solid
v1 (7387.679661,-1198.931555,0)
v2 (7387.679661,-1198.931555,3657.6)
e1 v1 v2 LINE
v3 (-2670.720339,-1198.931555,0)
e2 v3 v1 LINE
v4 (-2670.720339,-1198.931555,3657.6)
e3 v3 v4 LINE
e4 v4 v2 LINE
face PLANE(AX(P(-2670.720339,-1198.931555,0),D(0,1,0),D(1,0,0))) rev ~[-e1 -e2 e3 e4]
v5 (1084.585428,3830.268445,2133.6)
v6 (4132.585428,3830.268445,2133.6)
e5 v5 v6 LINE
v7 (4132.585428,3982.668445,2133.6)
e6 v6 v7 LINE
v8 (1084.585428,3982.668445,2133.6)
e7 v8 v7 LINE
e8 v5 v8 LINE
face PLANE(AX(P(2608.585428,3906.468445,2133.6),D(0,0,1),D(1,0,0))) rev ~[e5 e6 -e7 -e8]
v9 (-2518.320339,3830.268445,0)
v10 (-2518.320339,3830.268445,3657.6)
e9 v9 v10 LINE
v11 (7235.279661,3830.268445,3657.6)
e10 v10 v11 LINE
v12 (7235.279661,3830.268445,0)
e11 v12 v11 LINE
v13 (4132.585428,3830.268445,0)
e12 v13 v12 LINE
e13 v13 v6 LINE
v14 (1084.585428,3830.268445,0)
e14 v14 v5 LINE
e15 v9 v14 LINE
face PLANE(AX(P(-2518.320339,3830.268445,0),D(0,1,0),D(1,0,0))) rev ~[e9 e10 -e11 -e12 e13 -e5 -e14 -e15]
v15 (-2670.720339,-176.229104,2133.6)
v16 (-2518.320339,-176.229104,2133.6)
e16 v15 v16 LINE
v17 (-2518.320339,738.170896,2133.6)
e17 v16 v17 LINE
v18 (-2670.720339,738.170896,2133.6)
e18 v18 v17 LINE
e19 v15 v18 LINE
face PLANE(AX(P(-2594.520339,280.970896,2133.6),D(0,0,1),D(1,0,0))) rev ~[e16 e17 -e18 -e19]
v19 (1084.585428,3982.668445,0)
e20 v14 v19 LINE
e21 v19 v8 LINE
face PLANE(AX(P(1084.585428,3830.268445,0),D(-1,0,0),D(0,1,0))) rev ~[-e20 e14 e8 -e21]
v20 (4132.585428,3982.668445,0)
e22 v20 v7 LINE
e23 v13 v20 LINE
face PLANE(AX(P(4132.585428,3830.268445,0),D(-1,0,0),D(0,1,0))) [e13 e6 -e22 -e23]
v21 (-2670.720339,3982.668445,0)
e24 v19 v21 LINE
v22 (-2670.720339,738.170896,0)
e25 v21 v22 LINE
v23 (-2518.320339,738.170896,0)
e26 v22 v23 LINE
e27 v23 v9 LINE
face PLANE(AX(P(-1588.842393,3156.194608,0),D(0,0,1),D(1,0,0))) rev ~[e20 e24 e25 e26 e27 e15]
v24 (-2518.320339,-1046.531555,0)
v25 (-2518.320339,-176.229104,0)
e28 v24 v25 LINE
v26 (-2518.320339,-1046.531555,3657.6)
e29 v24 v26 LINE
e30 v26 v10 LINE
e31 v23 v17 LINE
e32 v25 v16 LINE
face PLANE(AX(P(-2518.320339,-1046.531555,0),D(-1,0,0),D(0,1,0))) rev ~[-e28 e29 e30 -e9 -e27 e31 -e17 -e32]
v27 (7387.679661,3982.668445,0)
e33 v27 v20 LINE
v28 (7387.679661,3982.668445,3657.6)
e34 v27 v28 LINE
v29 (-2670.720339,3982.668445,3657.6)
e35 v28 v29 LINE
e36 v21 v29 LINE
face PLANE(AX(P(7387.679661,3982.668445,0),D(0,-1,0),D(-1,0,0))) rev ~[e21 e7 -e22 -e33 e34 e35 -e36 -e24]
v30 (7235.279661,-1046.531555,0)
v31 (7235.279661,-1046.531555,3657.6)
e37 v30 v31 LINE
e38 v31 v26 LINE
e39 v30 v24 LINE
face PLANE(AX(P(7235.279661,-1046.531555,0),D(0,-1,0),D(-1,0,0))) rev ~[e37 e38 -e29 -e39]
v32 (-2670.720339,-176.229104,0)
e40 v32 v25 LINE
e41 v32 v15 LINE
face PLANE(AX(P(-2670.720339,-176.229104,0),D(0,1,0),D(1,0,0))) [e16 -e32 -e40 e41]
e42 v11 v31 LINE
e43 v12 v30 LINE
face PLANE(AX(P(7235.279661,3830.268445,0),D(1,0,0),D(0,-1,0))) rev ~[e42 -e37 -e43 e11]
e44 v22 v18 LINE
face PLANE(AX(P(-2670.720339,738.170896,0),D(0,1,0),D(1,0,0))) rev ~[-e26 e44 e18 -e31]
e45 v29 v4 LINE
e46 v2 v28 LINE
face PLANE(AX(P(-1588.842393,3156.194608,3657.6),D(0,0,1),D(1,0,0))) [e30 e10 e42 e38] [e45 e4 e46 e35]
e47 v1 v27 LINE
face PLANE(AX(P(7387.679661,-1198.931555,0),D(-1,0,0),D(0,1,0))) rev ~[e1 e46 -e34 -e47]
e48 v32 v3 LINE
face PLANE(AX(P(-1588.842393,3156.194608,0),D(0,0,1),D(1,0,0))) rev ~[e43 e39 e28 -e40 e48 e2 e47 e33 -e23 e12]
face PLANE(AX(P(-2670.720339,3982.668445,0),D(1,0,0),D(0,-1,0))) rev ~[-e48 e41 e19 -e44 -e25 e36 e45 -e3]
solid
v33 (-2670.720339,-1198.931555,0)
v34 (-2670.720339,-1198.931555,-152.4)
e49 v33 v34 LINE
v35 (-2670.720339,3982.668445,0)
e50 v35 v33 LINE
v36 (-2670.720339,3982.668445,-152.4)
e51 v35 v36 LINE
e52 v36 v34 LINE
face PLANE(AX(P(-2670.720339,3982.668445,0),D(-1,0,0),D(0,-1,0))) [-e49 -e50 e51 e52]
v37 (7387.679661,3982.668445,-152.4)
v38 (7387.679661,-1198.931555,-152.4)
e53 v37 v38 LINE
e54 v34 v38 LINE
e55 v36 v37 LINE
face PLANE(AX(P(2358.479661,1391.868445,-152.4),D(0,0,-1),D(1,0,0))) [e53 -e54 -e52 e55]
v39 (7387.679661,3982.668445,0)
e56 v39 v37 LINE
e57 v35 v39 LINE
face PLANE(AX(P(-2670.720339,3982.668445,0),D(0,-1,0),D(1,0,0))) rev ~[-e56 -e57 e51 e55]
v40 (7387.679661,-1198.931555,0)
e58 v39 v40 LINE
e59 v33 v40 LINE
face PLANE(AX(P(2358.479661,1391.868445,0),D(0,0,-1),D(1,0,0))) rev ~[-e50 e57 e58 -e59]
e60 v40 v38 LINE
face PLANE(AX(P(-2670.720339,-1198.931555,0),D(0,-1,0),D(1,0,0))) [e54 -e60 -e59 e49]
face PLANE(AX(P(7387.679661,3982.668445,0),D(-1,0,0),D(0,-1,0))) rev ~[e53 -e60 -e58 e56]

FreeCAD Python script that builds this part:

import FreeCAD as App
import Part
import Sketcher

V = App.Vector
Q = App.Units.Quantity

doc = App.newDocument("Part")
body = doc.addObject("PartDesign::Body", "Body")

# Sketch on XY plane
sketch1 = body.newObject("Sketcher::SketchObject", "Sketch")
sketch1.AttachmentSupport = (doc.getObject("XY_Plane"), [""])
sketch1.MapMode = "FlatFace"
sketch1.addGeometry(Part.LineSegment(V(-2671, 3983, 0), V(-2671, -1199, 0)), False)
sketch1.addGeometry(Part.LineSegment(V(-2671, -1199, 0), V(7388, -1199, 0)), False)
sketch1.addGeometry(Part.LineSegment(V(7388, -1199, 0), V(7388, 3983, 0)), False)
sketch1.addGeometry(Part.LineSegment(V(7388, 3983, 0), V(-2671, 3983, 0)), False)
sketch1.addGeometry(Part.LineSegment(V(-2518, 3830, 0), V(7235, 3830, 0)), False)
sketch1.addGeometry(Part.LineSegment(V(7235, 3830, 0), V(7235, -1047, 0)), False)
sketch1.addGeometry(Part.LineSegment(V(7235, -1047, 0), V(-2518, -1047, 0)), False)
sketch1.addGeometry(Part.LineSegment(V(-2518, -1047, 0), V(-2518, 3830, 0)), False)
sketch1.addConstraint(Sketcher.Constraint("Coincident", 0, 2, 1, 1))
sketch1.addConstraint(Sketcher.Constraint("Coincident", 1, 2, 2, 1))
sketch1.addConstraint(Sketcher.Constraint("Coincident", 2, 2, 3, 1))
sketch1.addConstraint(Sketcher.Constraint("Coincident", 3, 2, 0, 1))
sketch1.addConstraint(Sketcher.Constraint("Coincident", 4, 2, 5, 1))
sketch1.addConstraint(Sketcher.Constraint("Coincident", 5, 2, 6, 1))
sketch1.addConstraint(Sketcher.Constraint("Coincident", 6, 2, 7, 1))
sketch1.addConstraint(Sketcher.Constraint("Coincident", 7, 2, 4, 1))
sketch1.addConstraint(Sketcher.Constraint("Vertical", 0))
sketch1.addConstraint(Sketcher.Constraint("Horizontal", 1))
sketch1.addConstraint(Sketcher.Constraint("Vertical", 2))
sketch1.addConstraint(Sketcher.Constraint("Horizontal", 3))
sketch1.addConstraint(Sketcher.Constraint("Horizontal", 4))
sketch1.addConstraint(Sketcher.Constraint("Vertical", 5))
sketch1.addConstraint(Sketcher.Constraint("Horizontal", 6))
sketch1.addConstraint(Sketcher.Constraint("Vertical", 7))
sketch1.addConstraint(Sketcher.Constraint("DistanceX", 1, 1, 1, 2, Q("396 in")))
sketch1.addConstraint(Sketcher.Constraint("DistanceX", 4, 1, 4, 2, Q("384 in")))
sketch1.addConstraint(Sketcher.Constraint("DistanceY", 0, 2, 0, 1, Q("204 in")))
sketch1.addConstraint(Sketcher.Constraint("DistanceY", 5, 2, 5, 1, Q("192 in")))
sketch1.addConstraint(Sketcher.Constraint("DistanceX", 4, 2, 2, 2, Q("6 in")))
sketch1.addConstraint(Sketcher.Constraint("DistanceY", 4, 2, 2, 2, Q("6 in")))
sketch1.addConstraint(Sketcher.Constraint("DistanceX", 0, 2, -1, 1, Q("2670.720339 mm")))
sketch1.addConstraint(Sketcher.Constraint("DistanceY", 0, 2, -1, 1, Q("1198.931555 mm")))
pad1 = body.newObject("PartDesign::Pad", "Pad")
pad1.Profile = sketch1
pad1.Length = Q("144 in")

# Sketch on XY plane
sketch2 = body.newObject("Sketcher::SketchObject", "Sketch001")
sketch2.AttachmentSupport = (doc.getObject("XY_Plane"), [""])
sketch2.MapMode = "FlatFace"
sketch2.addGeometry(Part.LineSegment(V(1085, 3983, 0), V(1085, 3830, 0)), False)
sketch2.addGeometry(Part.LineSegment(V(1085, 3830, 0), V(4133, 3830, 0)), False)
sketch2.addGeometry(Part.LineSegment(V(4133, 3830, 0), V(4133, 3983, 0)), False)
sketch2.addGeometry(Part.LineSegment(V(4133, 3983, 0), V(1085, 3983, 0)), False)
sketch2.addGeometry(Part.LineSegment(V(-2671, 738, 0), V(-2671, -176, 0)), False)
sketch2.addGeometry(Part.LineSegment(V(-2671, -176, 0), V(-2518, -176, 0)), False)
sketch2.addGeometry(Part.LineSegment(V(-2518, -176, 0), V(-2518, 738, 0)), False)
sketch2.addGeometry(Part.LineSegment(V(-2518, 738, 0), V(-2671, 738, 0)), False)
sketch2.addConstraint(Sketcher.Constraint("Coincident", 0, 2, 1, 1))
sketch2.addConstraint(Sketcher.Constraint("Coincident", 1, 2, 2, 1))
sketch2.addConstraint(Sketcher.Constraint("Coincident", 2, 2, 3, 1))
sketch2.addConstraint(Sketcher.Constraint("Coincident", 3, 2, 0, 1))
sketch2.addConstraint(Sketcher.Constraint("Coincident", 4, 2, 5, 1))
sketch2.addConstraint(Sketcher.Constraint("Coincident", 5, 2, 6, 1))
sketch2.addConstraint(Sketcher.Constraint("Coincident", 6, 2, 7, 1))
sketch2.addConstraint(Sketcher.Constraint("Coincident", 7, 2, 4, 1))
sketch2.addConstraint(Sketcher.Constraint("Vertical", 0))
sketch2.addConstraint(Sketcher.Constraint("Horizontal", 1))
sketch2.addConstraint(Sketcher.Constraint("Vertical", 2))
sketch2.addConstraint(Sketcher.Constraint("Horizontal", 3))
sketch2.addConstraint(Sketcher.Constraint("Vertical", 4))
sketch2.addConstraint(Sketcher.Constraint("Horizontal", 5))
sketch2.addConstraint(Sketcher.Constraint("Vertical", 6))
sketch2.addConstraint(Sketcher.Constraint("Horizontal", 7))
sketch2.addConstraint(Sketcher.Constraint("Equal", 7, 0))
sketch2.addConstraint(Sketcher.Constraint("DistanceX", 1, 1, 1, 2, Q("120 in")))
sketch2.addConstraint(Sketcher.Constraint("DistanceX", 5, 1, 5, 2, Q("6 in")))
sketch2.addConstraint(Sketcher.Constraint("DistanceY", 4, 2, 4, 1, Q("36 in")))
sketch2.addConstraint(Sketcher.Constraint("DistanceX", -1, 1, 0, 2, Q("1084.585428 mm")))
sketch2.addConstraint(Sketcher.Constraint("DistanceX", 4, 2, -1, 1, Q("2670.720339 mm")))
sketch2.addConstraint(Sketcher.Constraint("DistanceY", 4, 2, 0, 2, Q("4006.497549 mm")))
sketch2.addConstraint(Sketcher.Constraint("DistanceY", -1, 1, 0, 2, Q("3830.268445 mm")))
pocket1 = body.newObject("PartDesign::Pocket", "Pocket")
pocket1.Profile = sketch2
pocket1.Length = Q("84 in")
pocket1.Reversed = True
body2 = doc.addObject("PartDesign::Body", "Body001")

# Sketch on XY plane
sketch3 = body2.newObject("Sketcher::SketchObject", "Sketch002")
sketch3.AttachmentSupport = (doc.getObject("XY_Plane001"), [""])
sketch3.MapMode = "FlatFace"
sketch3.addGeometry(Part.LineSegment(V(-2670.720339, -1198.931555, 0), V(-2670.720339, 3982.668445, 0)), False)
sketch3.addGeometry(Part.LineSegment(V(-2670.720339, 3982.668445, 0), V(7387.679661, 3982.668445, 0)), False)
sketch3.addGeometry(Part.LineSegment(V(7387.679661, 3982.668445, 0), V(7387.679661, -1198.931555, 0)), False)
sketch3.addGeometry(Part.LineSegment(V(7387.679661, -1198.931555, 0), V(-2670.720339, -1198.931555, 0)), False)
sketch3.addConstraint(Sketcher.Constraint("Coincident", 0, 2, 1, 1))
sketch3.addConstraint(Sketcher.Constraint("Coincident", 1, 2, 2, 1))
sketch3.addConstraint(Sketcher.Constraint("Coincident", 2, 2, 3, 1))
sketch3.addConstraint(Sketcher.Constraint("Coincident", 3, 2, 0, 1))
sketch3.addConstraint(Sketcher.Constraint("Vertical", 0))
sketch3.addConstraint(Sketcher.Constraint("Horizontal", 1))
sketch3.addConstraint(Sketcher.Constraint("Vertical", 2))
sketch3.addConstraint(Sketcher.Constraint("Horizontal", 3))
sketch3.addConstraint(Sketcher.Constraint("DistanceX", 1, 1, 1, 2, Q("396 in")))
sketch3.addConstraint(Sketcher.Constraint("DistanceY", 0, 1, 0, 2, Q("204 in")))
sketch3.addConstraint(Sketcher.Constraint("DistanceX", 0, 2, -1, 1, Q("2670.720339 mm")))
sketch3.addConstraint(Sketcher.Constraint("DistanceY", -1, 1, 0, 2, Q("3982.668445 mm")))
pad2 = body2.newObject("PartDesign::Pad", "Pad001")
pad2.Profile = sketch3
pad2.Length = Q("6 in")
pad2.Reversed = True

doc.recompute()
